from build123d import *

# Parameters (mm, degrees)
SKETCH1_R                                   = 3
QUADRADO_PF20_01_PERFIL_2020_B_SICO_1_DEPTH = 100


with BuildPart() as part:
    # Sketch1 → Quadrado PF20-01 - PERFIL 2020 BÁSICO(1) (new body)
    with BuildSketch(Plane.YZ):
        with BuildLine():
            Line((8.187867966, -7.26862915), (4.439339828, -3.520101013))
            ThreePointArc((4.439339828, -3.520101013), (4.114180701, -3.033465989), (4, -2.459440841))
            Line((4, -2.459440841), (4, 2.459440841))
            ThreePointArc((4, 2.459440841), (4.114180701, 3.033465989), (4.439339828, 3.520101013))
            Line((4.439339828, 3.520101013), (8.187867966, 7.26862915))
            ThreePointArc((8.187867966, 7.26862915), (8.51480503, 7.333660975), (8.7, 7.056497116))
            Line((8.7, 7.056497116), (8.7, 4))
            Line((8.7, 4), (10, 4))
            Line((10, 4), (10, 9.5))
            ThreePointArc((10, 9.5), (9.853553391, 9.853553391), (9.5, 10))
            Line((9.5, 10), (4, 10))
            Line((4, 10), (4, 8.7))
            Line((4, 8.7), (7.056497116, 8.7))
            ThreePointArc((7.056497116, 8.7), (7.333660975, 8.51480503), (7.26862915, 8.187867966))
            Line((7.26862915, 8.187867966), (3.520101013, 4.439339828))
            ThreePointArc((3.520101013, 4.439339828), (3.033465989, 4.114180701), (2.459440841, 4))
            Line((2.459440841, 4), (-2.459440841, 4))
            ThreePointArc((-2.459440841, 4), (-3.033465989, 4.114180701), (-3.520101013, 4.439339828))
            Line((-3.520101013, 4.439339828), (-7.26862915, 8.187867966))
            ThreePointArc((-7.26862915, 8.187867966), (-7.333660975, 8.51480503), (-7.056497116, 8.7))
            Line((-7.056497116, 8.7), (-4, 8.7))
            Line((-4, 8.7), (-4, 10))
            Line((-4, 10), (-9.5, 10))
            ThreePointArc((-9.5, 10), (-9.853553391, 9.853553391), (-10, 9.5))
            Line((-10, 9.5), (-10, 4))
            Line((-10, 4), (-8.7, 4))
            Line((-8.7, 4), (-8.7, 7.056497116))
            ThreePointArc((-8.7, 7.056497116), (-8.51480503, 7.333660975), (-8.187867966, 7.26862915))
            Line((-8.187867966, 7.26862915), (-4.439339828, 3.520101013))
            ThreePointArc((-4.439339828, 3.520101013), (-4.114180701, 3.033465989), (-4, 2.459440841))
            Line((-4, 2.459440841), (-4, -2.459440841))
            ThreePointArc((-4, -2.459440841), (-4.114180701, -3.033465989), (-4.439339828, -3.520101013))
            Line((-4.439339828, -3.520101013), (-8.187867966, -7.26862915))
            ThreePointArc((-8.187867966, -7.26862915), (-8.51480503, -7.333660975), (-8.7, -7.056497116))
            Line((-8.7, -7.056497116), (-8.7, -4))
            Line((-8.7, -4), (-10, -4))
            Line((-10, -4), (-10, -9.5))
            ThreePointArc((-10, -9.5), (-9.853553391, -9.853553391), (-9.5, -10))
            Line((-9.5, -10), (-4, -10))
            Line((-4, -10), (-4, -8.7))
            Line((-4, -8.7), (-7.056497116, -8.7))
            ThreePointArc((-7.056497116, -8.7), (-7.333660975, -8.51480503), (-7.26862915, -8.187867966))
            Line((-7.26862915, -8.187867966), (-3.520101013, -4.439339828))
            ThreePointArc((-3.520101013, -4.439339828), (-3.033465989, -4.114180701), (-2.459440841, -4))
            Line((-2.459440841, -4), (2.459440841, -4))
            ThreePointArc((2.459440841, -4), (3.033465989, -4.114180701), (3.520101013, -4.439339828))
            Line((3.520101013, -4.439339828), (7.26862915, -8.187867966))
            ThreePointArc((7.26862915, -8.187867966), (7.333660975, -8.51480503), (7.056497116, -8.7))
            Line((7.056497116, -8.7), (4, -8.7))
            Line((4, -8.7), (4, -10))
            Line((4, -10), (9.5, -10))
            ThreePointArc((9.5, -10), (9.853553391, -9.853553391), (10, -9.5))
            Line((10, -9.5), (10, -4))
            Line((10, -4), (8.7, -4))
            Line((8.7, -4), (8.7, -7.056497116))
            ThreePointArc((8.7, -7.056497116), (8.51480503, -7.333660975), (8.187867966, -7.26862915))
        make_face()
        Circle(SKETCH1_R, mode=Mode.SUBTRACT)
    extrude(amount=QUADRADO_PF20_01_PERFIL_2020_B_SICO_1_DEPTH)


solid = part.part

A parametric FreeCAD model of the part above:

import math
import FreeCAD as App
import Part
import Sketcher
from FreeCAD import Vector
Q = App.Units.Quantity

doc = App.newDocument("Part")
body = doc.addObject("PartDesign::Body", "Body")

# Sketch on YZ plane
sketch1 = body.newObject("Sketcher::SketchObject", "Sketch")
sketch1.AttachmentSupport = (doc.getObject("YZ_Plane"), [""])
sketch1.MapMode = "FlatFace"
sketch1.addGeometry([
    Part.LineSegment(Vector(8.19, -7.27, 0), Vector(4.44, -3.52, 0)),  # 0
    Part.ArcOfCircle(Part.Circle(Vector(5.5, -2.46, 0), Vector(0, 0, 1), 1.5), math.radians(180), math.radians(225)),  # 1
    Part.LineSegment(Vector(4, -2.46, 0), Vector(4, 2.46, 0)),  # 2
    Part.ArcOfCircle(Part.Circle(Vector(5.5, 2.46, 0), Vector(0, 0, 1), 1.5), math.radians(135), math.radians(180)),  # 3
    Part.LineSegment(Vector(4.44, 3.52, 0), Vector(8.19, 7.27, 0)),  # 4
    Part.ArcOfCircle(Part.Circle(Vector(8.4, 7.06, 0), Vector(0, 0, 1), 0.3), math.radians(0), math.radians(135)),  # 5
    Part.LineSegment(Vector(8.7, 7.06, 0), Vector(8.7, 4, 0)),  # 6
    Part.LineSegment(Vector(8.7, 4, 0), Vector(10, 4, 0)),  # 7
    Part.LineSegment(Vector(10, 4, 0), Vector(10, 9.5, 0)),  # 8
    Part.ArcOfCircle(Part.Circle(Vector(9.5, 9.5, 0), Vector(0, 0, 1), 0.5), math.radians(0), math.radians(90)),  # 9
    Part.LineSegment(Vector(9.5, 10, 0), Vector(4, 10, 0)),  # 10
    Part.LineSegment(Vector(4, 10, 0), Vector(4, 8.7, 0)),  # 11
    Part.LineSegment(Vector(4, 8.7, 0), Vector(7.06, 8.7, 0)),  # 12
    Part.ArcOfCircle(Part.Circle(Vector(7.06, 8.4, 0), Vector(0, 0, 1), 0.3), math.radians(-45), math.radians(90)),  # 13
    Part.LineSegment(Vector(7.27, 8.19, 0), Vector(3.52, 4.44, 0)),  # 14
    Part.ArcOfCircle(Part.Circle(Vector(2.46, 5.5, 0), Vector(0, 0, 1), 1.5), math.radians(-90), math.radians(-45)),  # 15
    Part.LineSegment(Vector(2.46, 4, 0), Vector(-2.46, 4, 0)),  # 16
    Part.ArcOfCircle(Part.Circle(Vector(-2.46, 5.5, 0), Vector(0, 0, 1), 1.5), math.radians(-135), math.radians(-90)),  # 17
    Part.LineSegment(Vector(-3.52, 4.44, 0), Vector(-7.27, 8.19, 0)),  # 18
    Part.ArcOfCircle(Part.Circle(Vector(-7.06, 8.4, 0), Vector(0, 0, 1), 0.3), math.radians(90), math.radians(225)),  # 19
    Part.LineSegment(Vector(-7.06, 8.7, 0), Vector(-4, 8.7, 0)),  # 20
    Part.LineSegment(Vector(-4, 8.7, 0), Vector(-4, 10, 0)),  # 21
    Part.LineSegment(Vector(-4, 10, 0), Vector(-9.5, 10, 0)),  # 22
    Part.ArcOfCircle(Part.Circle(Vector(-9.5, 9.5, 0), Vector(0, 0, 1), 0.5), math.radians(90), math.radians(180)),  # 23
    Part.LineSegment(Vector(-10, 9.5, 0), Vector(-10, 4, 0)),  # 24
    Part.LineSegment(Vector(-10, 4, 0), Vector(-8.7, 4, 0)),  # 25
    Part.LineSegment(Vector(-8.7, 4, 0), Vector(-8.7, 7.06, 0)),  # 26
    Part.ArcOfCircle(Part.Circle(Vector(-8.4, 7.06, 0), Vector(0, 0, 1), 0.3), math.radians(45), math.radians(180)),  # 27
    Part.LineSegment(Vector(-8.19, 7.27, 0), Vector(-4.44, 3.52, 0)),  # 28
    Part.ArcOfCircle(Part.Circle(Vector(-5.5, 2.46, 0), Vector(0, 0, 1), 1.5), math.radians(0), math.radians(45)),  # 29
    Part.LineSegment(Vector(-4, 2.46, 0), Vector(-4, -2.46, 0)),  # 30
    Part.ArcOfCircle(Part.Circle(Vector(-5.5, -2.46, 0), Vector(0, 0, 1), 1.5), math.radians(-45), math.radians(0)),  # 31
    Part.LineSegment(Vector(-4.44, -3.52, 0), Vector(-8.19, -7.27, 0)),  # 32
    Part.ArcOfCircle(Part.Circle(Vector(-8.4, -7.06, 0), Vector(0, 0, 1), 0.3), math.radians(-180), math.radians(-45)),  # 33
    Part.LineSegment(Vector(-8.7, -7.06, 0), Vector(-8.7, -4, 0)),  # 34
    Part.LineSegment(Vector(-8.7, -4, 0), Vector(-10, -4, 0)),  # 35
    Part.LineSegment(Vector(-10, -4, 0), Vector(-10, -9.5, 0)),  # 36
    Part.ArcOfCircle(Part.Circle(Vector(-9.5, -9.5, 0), Vector(0, 0, 1), 0.5), math.radians(180), math.radians(270)),  # 37
    Part.LineSegment(Vector(-9.5, -10, 0), Vector(-4, -10, 0)),  # 38
    Part.LineSegment(Vector(-4, -10, 0), Vector(-4, -8.7, 0)),  # 39
    Part.LineSegment(Vector(-4, -8.7, 0), Vector(-7.06, -8.7, 0)),  # 40
    Part.ArcOfCircle(Part.Circle(Vector(-7.06, -8.4, 0), Vector(0, 0, 1), 0.3), math.radians(135), math.radians(270)),  # 41
    Part.LineSegment(Vector(-7.27, -8.19, 0), Vector(-3.52, -4.44, 0)),  # 42
    Part.ArcOfCircle(Part.Circle(Vector(-2.46, -5.5, 0), Vector(0, 0, 1), 1.5), math.radians(90), math.radians(135)),  # 43
    Part.LineSegment(Vector(-2.46, -4, 0), Vector(2.46, -4, 0)),  # 44
    Part.ArcOfCircle(Part.Circle(Vector(2.46, -5.5, 0), Vector(0, 0, 1), 1.5), math.radians(45), math.radians(90)),  # 45
    Part.LineSegment(Vector(3.52, -4.44, 0), Vector(7.27, -8.19, 0)),  # 46
    Part.ArcOfCircle(Part.Circle(Vector(7.06, -8.4, 0), Vector(0, 0, 1), 0.3), math.radians(-90), math.radians(45)),  # 47
    Part.LineSegment(Vector(7.06, -8.7, 0), Vector(4, -8.7, 0)),  # 48
    Part.LineSegment(Vector(4, -8.7, 0), Vector(4, -10, 0)),  # 49
    Part.LineSegment(Vector(4, -10, 0), Vector(9.5, -10, 0)),  # 50
    Part.ArcOfCircle(Part.Circle(Vector(9.5, -9.5, 0), Vector(0, 0, 1), 0.5), math.radians(-90), math.radians(0)),  # 51
    Part.LineSegment(Vector(10, -9.5, 0), Vector(10, -4, 0)),  # 52
    Part.LineSegment(Vector(10, -4, 0), Vector(8.7, -4, 0)),  # 53
    Part.LineSegment(Vector(8.7, -4, 0), Vector(8.7, -7.06, 0)),  # 54
    Part.ArcOfCircle(Part.Circle(Vector(8.4, -7.06, 0), Vector(0, 0, 1), 0.3), math.radians(-135), math.radians(0)),  # 55
    Part.Circle(Vector(0, 0, 0), Vector(0, 0, 1), 3),  # 56
], False)
sketch1.addConstraint([
    Sketcher.Constraint("Tangent", 0, 2, 1, 2),
    Sketcher.Constraint("Tangent", 1, 1, 2, 1),
    Sketcher.Constraint("Tangent", 2, 2, 3, 2),
    Sketcher.Constraint("Tangent", 3, 1, 4, 1),
    Sketcher.Constraint("Tangent", 4, 2, 5, 2),
    Sketcher.Constraint("Tangent", 5, 1, 6, 1),
    Sketcher.Constraint("Coincident", 6, 2, 7, 1),
    Sketcher.Constraint("Coincident", 7, 2, 8, 1),
    Sketcher.Constraint("Tangent", 8, 2, 9, 1),
    Sketcher.Constraint("Tangent", 9, 2, 10, 1),
    Sketcher.Constraint("Coincident", 10, 2, 11, 1),
    Sketcher.Constraint("Coincident", 11, 2, 12, 1),
    Sketcher.Constraint("Tangent", 12, 2, 13, 2),
    Sketcher.Constraint("Tangent", 13, 1, 14, 1),
    Sketcher.Constraint("Tangent", 14, 2, 15, 2),
    Sketcher.Constraint("Tangent", 15, 1, 16, 1),
    Sketcher.Constraint("Tangent", 16, 2, 17, 2),
    Sketcher.Constraint("Tangent", 17, 1, 18, 1),
    Sketcher.Constraint("Tangent", 18, 2, 19, 2),
    Sketcher.Constraint("Tangent", 19, 1, 20, 1),
    Sketcher.Constraint("Coincident", 20, 2, 21, 1),
    Sketcher.Constraint("Coincident", 21, 2, 22, 1),
    Sketcher.Constraint("Tangent", 22, 2, 23, 1),
    Sketcher.Constraint("Tangent", 23, 2, 24, 1),
    Sketcher.Constraint("Coincident", 24, 2, 25, 1),
    Sketcher.Constraint("Coincident", 25, 2, 26, 1),
    Sketcher.Constraint("Tangent", 26, 2, 27, 2),
    Sketcher.Constraint("Tangent", 27, 1, 28, 1),
    Sketcher.Constraint("Tangent", 28, 2, 29, 2),
    Sketcher.Constraint("Tangent", 29, 1, 30, 1),
    Sketcher.Constraint("Tangent", 30, 2, 31, 2),
    Sketcher.Constraint("Tangent", 31, 1, 32, 1),
    Sketcher.Constraint("Tangent", 32, 2, 33, 2),
    Sketcher.Constraint("Tangent", 33, 1, 34, 1),
    Sketcher.Constraint("Coincident", 34, 2, 35, 1),
    Sketcher.Constraint("Coincident", 35, 2, 36, 1),
    Sketcher.Constraint("Tangent", 36, 2, 37, 1),
    Sketcher.Constraint("Tangent", 37, 2, 38, 1),
    Sketcher.Constraint("Coincident", 38, 2, 39, 1),
    Sketcher.Constraint("Coincident", 39, 2, 40, 1),
    Sketcher.Constraint("Tangent", 40, 2, 41, 2),
    Sketcher.Constraint("Tangent", 41, 1, 42, 1),
    Sketcher.Constraint("Tangent", 42, 2, 43, 2),
    Sketcher.Constraint("Tangent", 43, 1, 44, 1),
    Sketcher.Constraint("Tangent", 44, 2, 45, 2),
    Sketcher.Constraint("Tangent", 45, 1, 46, 1),
    Sketcher.Constraint("Tangent", 46, 2, 47, 2),
    Sketcher.Constraint("Tangent", 47, 1, 48, 1),
    Sketcher.Constraint("Coincident", 48, 2, 49, 1),
    Sketcher.Constraint("Coincident", 49, 2, 50, 1),
    Sketcher.Constraint("Tangent", 50, 2, 51, 1),
    Sketcher.Constraint("Tangent", 51, 2, 52, 1),
    Sketcher.Constraint("Coincident", 52, 2, 53, 1),
    Sketcher.Constraint("Coincident", 53, 2, 54, 1),
    Sketcher.Constraint("Tangent", 54, 2, 55, 2),
    Sketcher.Constraint("Tangent", 55, 1, 0, 1),
    Sketcher.Constraint("Vertical", 2),
    Sketcher.Constraint("Vertical", 6),
    Sketcher.Constraint("Horizontal", 7),
    Sketcher.Constraint("Vertical", 8),
    Sketcher.Constraint("Horizontal", 10),
    Sketcher.Constraint("Vertical", 11),
    Sketcher.Constraint("Horizontal", 12),
    Sketcher.Constraint("Horizontal", 16),
    Sketcher.Constraint("Horizontal", 20),
    Sketcher.Constraint("Vertical", 21),
    Sketcher.Constraint("Horizontal", 22),
    Sketcher.Constraint("Vertical", 24),
    Sketcher.Constraint("Horizontal", 25),
    Sketcher.Constraint("Vertical", 26),
    Sketcher.Constraint("Vertical", 30),
    Sketcher.Constraint("Vertical", 34),
    Sketcher.Constraint("Horizontal", 35),
    Sketcher.Constraint("Vertical", 36),
    Sketcher.Constraint("Horizontal", 38),
    Sketcher.Constraint("Vertical", 39),
    Sketcher.Constraint("Horizontal", 40),
    Sketcher.Constraint("Horizontal", 44),
    Sketcher.Constraint("Horizontal", 48),
    Sketcher.Constraint("Vertical", 49),
    Sketcher.Constraint("Horizontal", 50),
    Sketcher.Constraint("Vertical", 52),
    Sketcher.Constraint("Horizontal", 53),
    Sketcher.Constraint("Vertical", 54),
    Sketcher.Constraint("Coincident", 56, 3, -1, 1),
    Sketcher.Constraint("Equal", 1, 3),
    Sketcher.Constraint("Equal", 5, 13),
    Sketcher.Constraint("Equal", 3, 15),
    Sketcher.Constraint("Equal", 15, 17),
    Sketcher.Constraint("Equal", 13, 19),
    Sketcher.Constraint("Equal", 9, 23),
    Sketcher.Constraint("Equal", 19, 27),
    Sketcher.Constraint("Equal", 17, 29),
    Sketcher.Constraint("Equal", 29, 31),
    Sketcher.Constraint("Equal", 27, 33),
    Sketcher.Constraint("Equal", 23, 37),
    Sketcher.Constraint("Equal", 33, 41),
    Sketcher.Constraint("Equal", 31, 43),
    Sketcher.Constraint("Equal", 43, 45),
    Sketcher.Constraint("Equal", 41, 47),
    Sketcher.Constraint("Equal", 37, 51),
    Sketcher.Constraint("Equal", 47, 55),
    Sketcher.Constraint("Symmetric", 1, 3, 29, 3, -1, 1),
    Sketcher.Constraint("Symmetric", 5, 3, 33, 3, -1, 1),
    Sketcher.Constraint("Symmetric", 9, 3, 37, 3, -1, 1),
    Sketcher.Constraint("Symmetric", 13, 3, 41, 3, -1, 1),
    Sketcher.Constraint("Symmetric", 15, 3, 43, 3, -1, 1),
    Sketcher.Constraint("Symmetric", 19, 3, 47, 3, -1, 1),
    Sketcher.Constraint("Symmetric", 23, 3, 51, 3, -1, 1),
    Sketcher.Constraint("Symmetric", 27, 3, 55, 3, -1, 1),
    Sketcher.Constraint("Symmetric", 13, 3, 19, 3, -2),
    Sketcher.Constraint("Symmetric", 9, 3, 23, 3, -2),
    Sketcher.Constraint("Symmetric", 5, 3, 27, 3, -2),
    Sketcher.Constraint("Perpendicular", 0, 4),
    Sketcher.Constraint("Parallel", 4, 14),
    Sketcher.Constraint("Perpendicular", 14, 18),
    Sketcher.Constraint("Perpendicular", 28, 32),
    Sketcher.Constraint("Perpendicular", 42, 46),
    Sketcher.Constraint("Horizontal", 3, 3, 29, 3),
    Sketcher.Constraint("Horizontal", 7, 2, 15, 1),
    Sketcher.Constraint("Horizontal", 16, 2, 24, 2),
    Sketcher.Constraint("Horizontal", 35, 2, 43, 1),
    Sketcher.Constraint("Horizontal", 44, 2, 52, 2),
    Sketcher.Constraint("Vertical", 2, 2, 10, 2),
    Sketcher.Constraint("Vertical", 21, 2, 29, 1),
    Sketcher.Constraint("Vertical", 30, 2, 38, 2),
    Sketcher.Constraint("Vertical", 11, 2, 48, 2),
    Sketcher.Constraint("Equal", 44, 2),
    Sketcher.Constraint("Equal", 48, 6),
    Sketcher.Constraint("Equal", 50, 8),
    Sketcher.Constraint("Equal", 53, 11),
    Sketcher.Constraint("Diameter", 56, Q("6 mm")),
    Sketcher.Constraint("Radius", 1, Q("1.5 mm")),
    Sketcher.Constraint("Radius", 5, Q("0.3 mm")),
    Sketcher.Constraint("Radius", 9, Q("0.5 mm")),
    Sketcher.Constraint("DistanceX", 7, 1, 7, 2, Q("1.3 mm")),
    Sketcher.Constraint("DistanceX", 10, 2, 10, 1, Q("5.5 mm")),
    Sketcher.Constraint("DistanceX", -1, 1, 1, 1, Q("4 mm")),
    Sketcher.Constraint("DistanceX", 16, 2, 16, 1, Q("4.918882 mm")),
])
pad1 = body.newObject("PartDesign::Pad", "Pad")
pad1.Profile = sketch1
pad1.Length = 100

doc.recompute()
